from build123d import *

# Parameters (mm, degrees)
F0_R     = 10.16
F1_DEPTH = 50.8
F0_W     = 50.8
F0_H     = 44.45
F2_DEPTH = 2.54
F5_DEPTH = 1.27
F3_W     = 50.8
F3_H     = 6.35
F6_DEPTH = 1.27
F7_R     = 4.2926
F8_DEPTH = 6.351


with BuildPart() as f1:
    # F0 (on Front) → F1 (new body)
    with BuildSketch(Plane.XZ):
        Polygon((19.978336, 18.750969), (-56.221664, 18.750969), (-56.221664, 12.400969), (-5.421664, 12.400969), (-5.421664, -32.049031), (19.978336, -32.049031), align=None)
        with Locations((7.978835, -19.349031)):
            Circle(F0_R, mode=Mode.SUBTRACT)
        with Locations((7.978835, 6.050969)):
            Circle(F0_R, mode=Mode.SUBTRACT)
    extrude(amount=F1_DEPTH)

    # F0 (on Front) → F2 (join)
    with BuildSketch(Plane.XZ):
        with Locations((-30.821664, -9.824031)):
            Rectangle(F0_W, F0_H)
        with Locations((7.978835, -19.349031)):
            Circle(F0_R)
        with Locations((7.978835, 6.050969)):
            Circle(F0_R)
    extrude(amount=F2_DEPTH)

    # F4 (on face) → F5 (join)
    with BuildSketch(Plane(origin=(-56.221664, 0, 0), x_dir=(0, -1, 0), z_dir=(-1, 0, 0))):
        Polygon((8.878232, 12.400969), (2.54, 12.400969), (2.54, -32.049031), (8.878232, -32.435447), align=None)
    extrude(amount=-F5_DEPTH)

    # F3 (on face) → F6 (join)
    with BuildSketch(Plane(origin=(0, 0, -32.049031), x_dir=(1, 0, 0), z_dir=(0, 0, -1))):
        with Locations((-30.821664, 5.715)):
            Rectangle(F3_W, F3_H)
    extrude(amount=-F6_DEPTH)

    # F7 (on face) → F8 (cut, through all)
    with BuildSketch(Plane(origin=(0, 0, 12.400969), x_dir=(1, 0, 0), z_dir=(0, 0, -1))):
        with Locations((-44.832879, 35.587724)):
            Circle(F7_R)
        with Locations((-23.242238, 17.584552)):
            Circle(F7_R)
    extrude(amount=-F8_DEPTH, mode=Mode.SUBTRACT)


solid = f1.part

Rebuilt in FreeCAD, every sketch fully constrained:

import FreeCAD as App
import Part
import Sketcher
Q = App.Units.Quantity

doc = App.newDocument("Part")
body = doc.addObject("PartDesign::Body", "Body")

# Sketch on XZ plane
sketch1 = body.newObject("Sketcher::SketchObject", "Sketch")
sketch1.AttachmentSupport = (doc.getObject("XZ_Plane"), [""])
sketch1.MapMode = "FlatFace"
sketch1.addGeometry(Part.LineSegment(App.Vector(20, 19, 0), App.Vector(-56, 19, 0)), False)
sketch1.addGeometry(Part.LineSegment(App.Vector(-56, 19, 0), App.Vector(-56, 12, 0)), False)
sketch1.addGeometry(Part.LineSegment(App.Vector(-56, 12, 0), App.Vector(-5, 12, 0)), False)
sketch1.addGeometry(Part.LineSegment(App.Vector(-5, 12, 0), App.Vector(-5, -32, 0)), False)
sketch1.addGeometry(Part.LineSegment(App.Vector(-5, -32, 0), App.Vector(20, -32, 0)), False)
sketch1.addGeometry(Part.LineSegment(App.Vector(20, -32, 0), App.Vector(20, 19, 0)), False)
sketch1.addGeometry(Part.Circle(App.Vector(8, -19, 0), App.Vector(0, 0, 1), 10), False)
sketch1.addGeometry(Part.Circle(App.Vector(8, 6, 0), App.Vector(0, 0, 1), 10), False)
sketch1.addConstraint(Sketcher.Constraint("Coincident", 0, 2, 1, 1))
sketch1.addConstraint(Sketcher.Constraint("Coincident", 1, 2, 2, 1))
sketch1.addConstraint(Sketcher.Constraint("Coincident", 2, 2, 3, 1))
sketch1.addConstraint(Sketcher.Constraint("Coincident", 3, 2, 4, 1))
sketch1.addConstraint(Sketcher.Constraint("Coincident", 4, 2, 5, 1))
sketch1.addConstraint(Sketcher.Constraint("Coincident", 5, 2, 0, 1))
sketch1.addConstraint(Sketcher.Constraint("Horizontal", 0))
sketch1.addConstraint(Sketcher.Constraint("Vertical", 1))
sketch1.addConstraint(Sketcher.Constraint("Horizontal", 2))
sketch1.addConstraint(Sketcher.Constraint("Vertical", 3))
sketch1.addConstraint(Sketcher.Constraint("Horizontal", 4))
sketch1.addConstraint(Sketcher.Constraint("Vertical", 5))
sketch1.addConstraint(Sketcher.Constraint("Equal", 6, 7))
sketch1.addConstraint(Sketcher.Constraint("Vertical", 6, 3, 7, 3))
sketch1.addConstraint(Sketcher.Constraint("Equal", 2, 5))
sketch1.addConstraint(Sketcher.Constraint("Diameter", 6, Q("0.8 in")))
sketch1.addConstraint(Sketcher.Constraint("DistanceX", 0, 2, 0, 1, Q("3 in")))
sketch1.addConstraint(Sketcher.Constraint("DistanceX", 2, 1, 2, 2, Q("2 in")))
sketch1.addConstraint(Sketcher.Constraint("DistanceY", 6, 3, 7, 3, Q("1 in")))
sketch1.addConstraint(Sketcher.Constraint("DistanceY", 1, 2, 1, 1, Q("0.25 in")))
sketch1.addConstraint(Sketcher.Constraint("DistanceY", 7, 3, 0, 2, Q("0.5 in")))
sketch1.addConstraint(Sketcher.Constraint("DistanceX", 0, 2, 7, 3, Q("64.200499 mm")))
sketch1.addConstraint(Sketcher.Constraint("DistanceY", 6, 3, -1, 1, Q("19.349031 mm")))
sketch1.addConstraint(Sketcher.Constraint("DistanceX", -1, 1, 6, 3, Q("7.978835 mm")))
pad1 = body.newObject("PartDesign::Pad", "Pad")
pad1.Profile = sketch1
pad1.Length = Q("2 in")

# Sketch on XZ plane
sketch2 = body.newObject("Sketcher::SketchObject", "Sketch001")
sketch2.AttachmentSupport = (doc.getObject("XZ_Plane"), [""])
sketch2.MapMode = "FlatFace"
sketch2.addGeometry(Part.LineSegment(App.Vector(-56, 12, 0), App.Vector(-56, -32, 0)), False)
sketch2.addGeometry(Part.LineSegment(App.Vector(-56, -32, 0), App.Vector(-5, -32, 0)), False)
sketch2.addGeometry(Part.LineSegment(App.Vector(-5, -32, 0), App.Vector(-5, 12, 0)), False)
sketch2.addGeometry(Part.LineSegment(App.Vector(-5, 12, 0), App.Vector(-56, 12, 0)), False)
sketch2.addGeometry(Part.Circle(App.Vector(8, -19, 0), App.Vector(0, 0, 1), 10), False)
sketch2.addGeometry(Part.Circle(App.Vector(8, 6, 0), App.Vector(0, 0, 1), 10), False)
sketch2.addConstraint(Sketcher.Constraint("Coincident", 0, 2, 1, 1))
sketch2.addConstraint(Sketcher.Constraint("Coincident", 1, 2, 2, 1))
sketch2.addConstraint(Sketcher.Constraint("Coincident", 2, 2, 3, 1))
sketch2.addConstraint(Sketcher.Constraint("Coincident", 3, 2, 0, 1))
sketch2.addConstraint(Sketcher.Constraint("Vertical", 0))
sketch2.addConstraint(Sketcher.Constraint("Horizontal", 1))
sketch2.addConstraint(Sketcher.Constraint("Vertical", 2))
sketch2.addConstraint(Sketcher.Constraint("Horizontal", 3))
sketch2.addConstraint(Sketcher.Constraint("Equal", 4, 5))
sketch2.addConstraint(Sketcher.Constraint("Vertical", 4, 3, 5, 3))
sketch2.addConstraint(Sketcher.Constraint("Diameter", 4, Q("0.8 in")))
sketch2.addConstraint(Sketcher.Constraint("DistanceX", 1, 1, 1, 2, Q("2 in")))
sketch2.addConstraint(Sketcher.Constraint("DistanceY", 4, 3, 5, 3, Q("1 in")))
sketch2.addConstraint(Sketcher.Constraint("DistanceY", 0, 2, 0, 1, Q("1.75 in")))
sketch2.addConstraint(Sketcher.Constraint("DistanceY", 0, 2, 4, 3, Q("0.5 in")))
sketch2.addConstraint(Sketcher.Constraint("DistanceX", 0, 2, 4, 3, Q("64.200499 mm")))
sketch2.addConstraint(Sketcher.Constraint("DistanceY", 4, 3, -1, 1, Q("19.349031 mm")))
sketch2.addConstraint(Sketcher.Constraint("DistanceX", -1, 1, 4, 3, Q("7.978835 mm")))
pad2 = body.newObject("PartDesign::Pad", "Pad001")
pad2.Profile = sketch2
pad2.Length = Q("0.1 in")

# Sketch on YZ plane
sketch3 = body.newObject("Sketcher::SketchObject", "Sketch002")
sketch3.AttachmentSupport = (doc.getObject("YZ_Plane"), [""])
sketch3.MapMode = "FlatFace"
sketch3.AttachmentOffset = App.Placement(App.Vector(0, 0, -56.221664), App.Rotation())
sketch3.addGeometry(Part.LineSegment(App.Vector(-8.878232, 12.400969, 0), App.Vector(-2.54, 12.400969, 0)), False)
sketch3.addGeometry(Part.LineSegment(App.Vector(-2.54, 12.400969, 0), App.Vector(-2.54, -32.049031, 0)), False)
sketch3.addGeometry(Part.LineSegment(App.Vector(-2.54, -32.049031, 0), App.Vector(-8.878232, -32.435447, 0)), False)
sketch3.addGeometry(Part.LineSegment(App.Vector(-8.878232, -32.435447, 0), App.Vector(-8.878232, 12.400969, 0)), False)
sketch3.addConstraint(Sketcher.Constraint("Coincident", 0, 2, 1, 1))
sketch3.addConstraint(Sketcher.Constraint("Coincident", 1, 2, 2, 1))
sketch3.addConstraint(Sketcher.Constraint("Coincident", 2, 2, 3, 1))
sketch3.addConstraint(Sketcher.Constraint("Coincident", 3, 2, 0, 1))
sketch3.addConstraint(Sketcher.Constraint("Horizontal", 0))
sketch3.addConstraint(Sketcher.Constraint("Vertical", 1))
sketch3.addConstraint(Sketcher.Constraint("Vertical", 3))
sketch3.addConstraint(Sketcher.Constraint("DistanceY", 1, 2, 1, 1, Q("1.75 in")))
sketch3.addConstraint(Sketcher.Constraint("DistanceX", 0, 2, -1, 1, Q("0.1 in")))
sketch3.addConstraint(Sketcher.Constraint("Distance", 2, Q("0.25 in")))
sketch3.addConstraint(Sketcher.Constraint("DistanceX", 0, 1, 0, 2, Q("6.338232 mm")))
sketch3.addConstraint(Sketcher.Constraint("DistanceY", -1, 1, 0, 2, Q("12.400969 mm")))
pad3 = body.newObject("PartDesign::Pad", "Pad002")
pad3.Profile = sketch3
pad3.Length = Q("0.05 in")

# Sketch on XY plane
sketch4 = body.newObject("Sketcher::SketchObject", "Sketch003")
sketch4.AttachmentSupport = (doc.getObject("XY_Plane"), [""])
sketch4.MapMode = "FlatFace"
sketch4.AttachmentOffset = App.Placement(App.Vector(0, 0, -32.049031), App.Rotation())
sketch4.addGeometry(Part.LineSegment(App.Vector(-56, -9, 0), App.Vector(-56, -3, 0)), False)
sketch4.addGeometry(Part.LineSegment(App.Vector(-56, -3, 0), App.Vector(-5, -3, 0)), False)
sketch4.addGeometry(Part.LineSegment(App.Vector(-5, -3, 0), App.Vector(-5, -9, 0)), False)
sketch4.addGeometry(Part.LineSegment(App.Vector(-5, -9, 0), App.Vector(-56, -9, 0)), False)
sketch4.addConstraint(Sketcher.Constraint("Coincident", 0, 2, 1, 1))
sketch4.addConstraint(Sketcher.Constraint("Coincident", 1, 2, 2, 1))
sketch4.addConstraint(Sketcher.Constraint("Coincident", 2, 2, 3, 1))
sketch4.addConstraint(Sketcher.Constraint("Coincident", 3, 2, 0, 1))
sketch4.addConstraint(Sketcher.Constraint("Vertical", 0))
sketch4.addConstraint(Sketcher.Constraint("Horizontal", 1))
sketch4.addConstraint(Sketcher.Constraint("Vertical", 2))
sketch4.addConstraint(Sketcher.Constraint("Horizontal", 3))
sketch4.addConstraint(Sketcher.Constraint("DistanceX", 1, 1, 1, 2, Q("2 in")))
sketch4.addConstraint(Sketcher.Constraint("DistanceY", 0, 1, 0, 2, Q("0.25 in")))
sketch4.addConstraint(Sketcher.Constraint("DistanceY", 0, 2, -1, 1, Q("0.1 in")))
sketch4.addConstraint(Sketcher.Constraint("DistanceX", 0, 2, -1, 1, Q("56.221664 mm")))
pad4 = body.newObject("PartDesign::Pad", "Pad003")
pad4.Profile = sketch4
pad4.Length = Q("0.05 in")

# Sketch on XY plane
sketch5 = body.newObject("Sketcher::SketchObject", "Sketch004")
sketch5.AttachmentSupport = (doc.getObject("XY_Plane"), [""])
sketch5.MapMode = "FlatFace"
sketch5.AttachmentOffset = App.Placement(App.Vector(0, 0, 12.400969), App.Rotation())
sketch5.addGeometry(Part.Circle(App.Vector(-44.8, -35.6, 0), App.Vector(0, 0, 1), 4.3), False)
sketch5.addGeometry(Part.Circle(App.Vector(-23.2, -17.6, 0), App.Vector(0, 0, 1), 4.3), False)
sketch5.addConstraint(Sketcher.Constraint("Equal", 0, 1))
sketch5.addConstraint(Sketcher.Constraint("Diameter", 0, Q("0.338 in")))
sketch5.addConstraint(Sketcher.Constraint("DistanceX", 0, 3, -1, 1, Q("44.832879 mm")))
sketch5.addConstraint(Sketcher.Constraint("DistanceX", 1, 3, -1, 1, Q("23.242238 mm")))
sketch5.addConstraint(Sketcher.Constraint("DistanceY", 1, 3, -1, 1, Q("17.584552 mm")))
sketch5.addConstraint(Sketcher.Constraint("DistanceY", 0, 3, -1, 1, Q("35.587724 mm")))
pocket1 = body.newObject("PartDesign::Pocket", "Pocket")
pocket1.Profile = sketch5
pocket1.Type = "ThroughAll"
pocket1.Reversed = True

doc.recompute()
